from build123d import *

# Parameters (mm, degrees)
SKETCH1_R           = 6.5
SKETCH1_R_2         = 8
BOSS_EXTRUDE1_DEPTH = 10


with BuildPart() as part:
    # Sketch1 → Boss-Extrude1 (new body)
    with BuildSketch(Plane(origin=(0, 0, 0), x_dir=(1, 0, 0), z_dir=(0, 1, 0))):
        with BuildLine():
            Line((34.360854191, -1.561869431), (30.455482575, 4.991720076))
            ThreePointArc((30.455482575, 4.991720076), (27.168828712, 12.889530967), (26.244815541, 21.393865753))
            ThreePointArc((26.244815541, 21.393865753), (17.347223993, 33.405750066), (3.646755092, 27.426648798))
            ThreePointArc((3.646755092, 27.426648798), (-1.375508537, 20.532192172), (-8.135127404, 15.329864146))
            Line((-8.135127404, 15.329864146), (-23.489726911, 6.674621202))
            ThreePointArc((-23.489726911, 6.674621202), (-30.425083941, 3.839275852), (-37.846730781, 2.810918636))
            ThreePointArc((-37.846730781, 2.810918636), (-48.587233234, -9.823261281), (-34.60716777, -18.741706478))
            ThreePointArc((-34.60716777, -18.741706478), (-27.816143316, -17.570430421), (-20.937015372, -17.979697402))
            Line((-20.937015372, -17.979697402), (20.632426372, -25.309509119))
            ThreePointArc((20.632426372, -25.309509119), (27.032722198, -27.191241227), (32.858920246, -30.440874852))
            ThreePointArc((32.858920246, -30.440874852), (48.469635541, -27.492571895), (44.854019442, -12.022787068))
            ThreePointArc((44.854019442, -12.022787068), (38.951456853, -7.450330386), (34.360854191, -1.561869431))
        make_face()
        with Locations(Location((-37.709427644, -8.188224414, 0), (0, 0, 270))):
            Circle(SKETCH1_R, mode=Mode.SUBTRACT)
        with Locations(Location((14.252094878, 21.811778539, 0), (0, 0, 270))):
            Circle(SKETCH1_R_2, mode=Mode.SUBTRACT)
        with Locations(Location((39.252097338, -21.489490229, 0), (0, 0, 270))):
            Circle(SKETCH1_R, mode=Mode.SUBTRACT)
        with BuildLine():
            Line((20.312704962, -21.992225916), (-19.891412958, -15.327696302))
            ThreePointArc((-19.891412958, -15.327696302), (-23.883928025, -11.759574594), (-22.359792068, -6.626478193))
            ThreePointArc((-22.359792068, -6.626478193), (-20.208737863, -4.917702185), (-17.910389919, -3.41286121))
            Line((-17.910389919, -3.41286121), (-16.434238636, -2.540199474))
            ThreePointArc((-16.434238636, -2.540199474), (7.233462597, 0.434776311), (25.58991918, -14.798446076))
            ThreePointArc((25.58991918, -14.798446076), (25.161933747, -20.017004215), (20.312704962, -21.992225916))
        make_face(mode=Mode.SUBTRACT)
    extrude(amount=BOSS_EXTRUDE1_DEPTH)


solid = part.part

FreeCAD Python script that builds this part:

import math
import FreeCAD as App
import Part
import Sketcher
from FreeCAD import Vector

doc = App.newDocument("Part")
body = doc.addObject("PartDesign::Body", "Body")

# Sketch on XZ plane
sketch1 = body.newObject("Sketcher::SketchObject", "Sketch")
sketch1.AttachmentSupport = (doc.getObject("XZ_Plane"), [""])
sketch1.MapMode = "FlatFace"
sketch1.addGeometry([
    Part.LineSegment(Vector(34.360854, 1.561869, 0), Vector(30.455483, -4.99172, 0)),  # 0
    Part.ArcOfCircle(Part.Circle(Vector(56.226617, -20.349084, 0), Vector(0, 0, 1), 30), math.radians(149.208721), math.radians(181.99579)),  # 1
    Part.ArcOfCircle(Part.Circle(Vector(14.252095, -21.811779, 0), Vector(0, 0, 1), 12), math.radians(-152.101553), math.radians(1.99579)),  # 2
    Part.ArcOfCircle(Part.Circle(Vector(-22.866594, -41.463824, 0), Vector(0, 0, 1), 30), math.radians(27.898447), math.radians(60.590454)),  # 3
    Part.LineSegment(Vector(-8.135127, -15.329864, 0), Vector(-23.489727, -6.674621, 0)),  # 4
    Part.ArcOfCircle(Part.Circle(Vector(-38.221194, -32.808582, 0), Vector(0, 0, 1), 30), math.radians(60.590454), math.radians(89.28481)),  # 5
    Part.ArcOfCircle(Part.Circle(Vector(-37.709428, 8.188224, 0), Vector(0, 0, 1), 11), math.radians(73.618982), math.radians(269.28481)),  # 6
    Part.ArcOfCircle(Part.Circle(Vector(-26.146459, 47.52393, 0), Vector(0, 0, 1), 30), math.radians(-106.381018), math.radians(-80.000003)),  # 7
    Part.LineSegment(Vector(-20.937015, 17.979697, 0), Vector(20.632426, 25.309509, 0)),  # 8
    Part.ArcOfCircle(Part.Circle(Vector(15.422983, 54.853742, 0), Vector(0, 0, 1), 30), math.radians(-80.000003), math.radians(-54.465158)),  # 9
    Part.ArcOfCircle(Part.Circle(Vector(39.252097, 21.48949, 0), Vector(0, 0, 1), 11), math.radians(-59.385073), math.radians(125.534842)),  # 10
    Part.ArcOfCircle(Part.Circle(Vector(60.131989, -13.795494, 0), Vector(0, 0, 1), 30), math.radians(120.614927), math.radians(149.208721)),  # 11
    Part.Circle(Vector(-37.709428, 8.188224, 0), Vector(0, 0, 1), 6.5),  # 12
    Part.Circle(Vector(39.252097, 21.48949, 0), Vector(0, 0, 1), 6.5),  # 13
    Part.ArcOfCircle(Part.Circle(Vector(21.130383, 17.059539, 0), Vector(0, 0, 1), 5), math.radians(-26.886113), math.radians(99.41218)),  # 14
    Part.LineSegment(Vector(20.312705, 21.992226, 0), Vector(-19.891413, 15.327696, 0)),  # 15
    Part.ArcOfCircle(Part.Circle(Vector(-19.073735, 10.395009, 0), Vector(0, 0, 1), 5), math.radians(99.41218), math.radians(228.912449)),  # 16
    Part.ArcOfCircle(Part.Circle(Vector(-2.643447, 29.237664, 0), Vector(0, 0, 1), 30), math.radians(-131.087551), math.radians(-120.590461)),  # 17
    Part.LineSegment(Vector(-17.91039, 3.412861, 0), Vector(-16.434239, 2.540199, 0)),  # 18
    Part.ArcOfCircle(Part.Circle(Vector(-1.167296, 28.365003, 0), Vector(0, 0, 1), 30), math.radians(-120.590461), math.radians(-26.886113)),  # 19
    Part.Circle(Vector(14.252095, -21.811779, 0), Vector(0, 0, 1), 8),  # 20
], False)
sketch1.addConstraint([
    Sketcher.Constraint("Coincident", 0, 2, 1, 1),
    Sketcher.Constraint("Coincident", 1, 2, 2, 2),
    Sketcher.Constraint("Coincident", 2, 1, 3, 1),
    Sketcher.Constraint("Coincident", 3, 2, 4, 1),
    Sketcher.Constraint("Coincident", 4, 2, 5, 1),
    Sketcher.Constraint("Coincident", 5, 2, 6, 2),
    Sketcher.Constraint("Coincident", 6, 1, 7, 1),
    Sketcher.Constraint("Coincident", 7, 2, 8, 1),
    Sketcher.Constraint("Coincident", 8, 2, 9, 1),
    Sketcher.Constraint("Coincident", 9, 2, 10, 2),
    Sketcher.Constraint("Coincident", 10, 1, 11, 1),
    Sketcher.Constraint("Coincident", 11, 2, 0, 1),
    Sketcher.Constraint("Coincident", 14, 2, 15, 1),
    Sketcher.Constraint("Coincident", 15, 2, 16, 1),
    Sketcher.Constraint("Coincident", 16, 2, 17, 1),
    Sketcher.Constraint("Coincident", 17, 2, 18, 1),
    Sketcher.Constraint("Coincident", 18, 2, 19, 1),
    Sketcher.Constraint("Coincident", 19, 2, 14, 1),
    Sketcher.Constraint("Coincident", 12, 3, 6, 3),
    Sketcher.Constraint("Coincident", 13, 3, 10, 3),
    Sketcher.Constraint("Coincident", 20, 3, 2, 3),
    Sketcher.Constraint("Diameter", 12, 13.0),
    Sketcher.Constraint("Diameter", 13, 13.0),
    Sketcher.Constraint("Diameter", 20, 16.0),
    Sketcher.Constraint("Radius", 1, 30.0),
    Sketcher.Constraint("Radius", 2, 12.0),
    Sketcher.Constraint("Radius", 3, 30.0),
    Sketcher.Constraint("Radius", 5, 30.0),
    Sketcher.Constraint("Radius", 6, 11.0),
    Sketcher.Constraint("Radius", 7, 30.0),
    Sketcher.Constraint("Radius", 9, 30.0),
    Sketcher.Constraint("Radius", 10, 11.0),
    Sketcher.Constraint("Radius", 11, 30.0),
    Sketcher.Constraint("Radius", 14, 5.0),
    Sketcher.Constraint("Radius", 16, 5.0),
    Sketcher.Constraint("Radius", 17, 30.0),
    Sketcher.Constraint("Radius", 19, 30.0),
    Sketcher.Constraint("DistanceY", 15, 2, 7, 2, 2.652001),
    Sketcher.Constraint("DistanceY", -1, 1, 18, 2, 2.540199),
    Sketcher.Constraint("DistanceX", 5, 3, 3, 3, 15.3546),
    Sketcher.Constraint("DistanceX", 9, 3, 14, 3, 5.707401),
    Sketcher.Constraint("DistanceX", 14, 3, 0, 2, 9.325099),
    Sketcher.Constraint("DistanceX", 1, 2, 1, 3, 29.981802),
    Sketcher.Constraint("DistanceX", 4, 2, 3, 2, 15.3546),
    Sketcher.Constraint("DistanceX", 12, 3, 4, 2, 14.219701),
    Sketcher.Constraint("DistanceX", 9, 2, 10, 1, 11.995099),
    Sketcher.Constraint("DistanceY", 4, 2, 16, 2, 13.301099),
    Sketcher.Constraint("Distance", 0, 7.628988),
    Sketcher.Constraint("Distance", 4, 17.626031),
    Sketcher.Constraint("DistanceY", 2, 3, -1, 1, 21.811779),
    Sketcher.Constraint("DistanceY", 5, 3, -1, 1, 32.808582),
    Sketcher.Constraint("DistanceX", 7, 3, -1, 1, 26.146459),
    Sketcher.Constraint("DistanceY", -1, 1, 7, 3, 47.52393),
    Sketcher.Constraint("DistanceY", -1, 1, 9, 3, 54.853742),
    Sketcher.Constraint("DistanceY", -1, 1, 10, 3, 21.48949),
    Sketcher.Constraint("DistanceX", -1, 1, 11, 3, 60.131989),
    Sketcher.Constraint("DistanceY", -1, 1, 14, 3, 17.059539),
    Sketcher.Constraint("DistanceY", -1, 1, 16, 3, 10.395009),
    Sketcher.Constraint("DistanceY", 0, 2, -1, 1, 4.99172),
    Sketcher.Constraint("DistanceY", 2, 1, -1, 1, 27.426649),
    Sketcher.Constraint("DistanceY", 4, 2, -1, 1, 6.674621),
    Sketcher.Constraint("DistanceX", 5, 2, -1, 1, 37.846731),
    Sketcher.Constraint("DistanceY", -1, 1, 8, 2, 25.309509),
    Sketcher.Constraint("DistanceX", -1, 1, 9, 2, 32.85892),
    Sketcher.Constraint("DistanceY", -1, 1, 11, 2, 1.561869),
    Sketcher.Constraint("DistanceX", 17, 2, -1, 1, 17.91039),
    Sketcher.Constraint("DistanceY", -1, 1, 17, 2, 3.412861),
    Sketcher.Constraint("DistanceX", 18, 2, -1, 1, 16.434239),
    Sketcher.Constraint("DistanceX", -1, 1, 19, 2, 25.589919),
    Sketcher.Constraint("DistanceX", 16, 3, 2, 3, 33.325829),
    Sketcher.Constraint("DistanceX", 12, 3, 6, 1, 3.10226),
    Sketcher.Constraint("DistanceX", 7, 2, 16, 3, 1.863281),
    Sketcher.Constraint("DistanceX", 14, 2, 8, 2, 0.319721),
])
pad1 = body.newObject("PartDesign::Pad", "Pad")
pad1.Profile = sketch1
pad1.Length = 10
pad1.Reversed = True

doc.recompute()
